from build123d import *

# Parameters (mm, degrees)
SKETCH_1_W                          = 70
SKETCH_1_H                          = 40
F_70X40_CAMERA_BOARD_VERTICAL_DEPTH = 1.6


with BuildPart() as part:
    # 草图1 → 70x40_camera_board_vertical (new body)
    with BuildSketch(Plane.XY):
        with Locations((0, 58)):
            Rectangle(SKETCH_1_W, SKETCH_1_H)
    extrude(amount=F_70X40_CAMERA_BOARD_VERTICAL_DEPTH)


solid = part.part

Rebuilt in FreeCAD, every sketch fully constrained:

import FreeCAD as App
import Part
import Sketcher
Q = App.Units.Quantity


def add_polygon(sketch, points):
    """Adds a closed chain of lines whose ends are joined by coincident constraints."""
    first, n = sketch.GeometryCount, len(points)
    for a, b in zip(points, points[1:] + points[:1]):
        sketch.addGeometry(Part.LineSegment(App.Vector(*a, 0), App.Vector(*b, 0)), False)
    for i in range(n):
        sketch.addConstraint(Sketcher.Constraint("Coincident", first + i, 2, first + (i + 1) % n, 1))

doc = App.newDocument("Part")
params = doc.addObject("Spreadsheet::Sheet", "Params")
for row, (alias, value) in enumerate([
    ("sketch1_width", "70 mm"),
    ("sketch1_height", "40 mm"),
    ("pad1_length", "1.6 mm"),
], start=1):
    params.set(f"A{row}", alias)
    params.set(f"B{row}", "=" + value)
    params.setAlias(f"B{row}", alias)

body = doc.addObject("PartDesign::Body", "Body")

sketch1 = body.newObject("Sketcher::SketchObject", "Sketch")
sketch1.AttachmentSupport = (doc.getObject("XY_Plane"), [""])
sketch1.MapMode = "FlatFace"
add_polygon(sketch1, [(-35, 78), (-35, 38), (35, 38), (35, 78)])
sketch1.addConstraint([
    Sketcher.Constraint("Vertical", 0),
    Sketcher.Constraint("Horizontal", 1),
    Sketcher.Constraint("Vertical", 2),
    Sketcher.Constraint("Horizontal", 3),
    Sketcher.Constraint("DistanceX", 1, 1, 1, 2, Q("70 mm")),
    Sketcher.Constraint("DistanceY", 0, 2, 0, 1, Q("40 mm")),
    Sketcher.Constraint("DistanceX", 0, 2, -1, 1, Q("35 mm")),
    Sketcher.Constraint("DistanceY", -1, 1, 0, 2, Q("38 mm")),
])
sketch1.setExpression("Constraints[8]", "Params.sketch1_width")
sketch1.setExpression("Constraints[9]", "Params.sketch1_height")
pad1 = body.newObject("PartDesign::Pad", "Pad")
pad1.Profile = sketch1
pad1.setExpression("Length", "Params.pad1_length")

doc.recompute()
